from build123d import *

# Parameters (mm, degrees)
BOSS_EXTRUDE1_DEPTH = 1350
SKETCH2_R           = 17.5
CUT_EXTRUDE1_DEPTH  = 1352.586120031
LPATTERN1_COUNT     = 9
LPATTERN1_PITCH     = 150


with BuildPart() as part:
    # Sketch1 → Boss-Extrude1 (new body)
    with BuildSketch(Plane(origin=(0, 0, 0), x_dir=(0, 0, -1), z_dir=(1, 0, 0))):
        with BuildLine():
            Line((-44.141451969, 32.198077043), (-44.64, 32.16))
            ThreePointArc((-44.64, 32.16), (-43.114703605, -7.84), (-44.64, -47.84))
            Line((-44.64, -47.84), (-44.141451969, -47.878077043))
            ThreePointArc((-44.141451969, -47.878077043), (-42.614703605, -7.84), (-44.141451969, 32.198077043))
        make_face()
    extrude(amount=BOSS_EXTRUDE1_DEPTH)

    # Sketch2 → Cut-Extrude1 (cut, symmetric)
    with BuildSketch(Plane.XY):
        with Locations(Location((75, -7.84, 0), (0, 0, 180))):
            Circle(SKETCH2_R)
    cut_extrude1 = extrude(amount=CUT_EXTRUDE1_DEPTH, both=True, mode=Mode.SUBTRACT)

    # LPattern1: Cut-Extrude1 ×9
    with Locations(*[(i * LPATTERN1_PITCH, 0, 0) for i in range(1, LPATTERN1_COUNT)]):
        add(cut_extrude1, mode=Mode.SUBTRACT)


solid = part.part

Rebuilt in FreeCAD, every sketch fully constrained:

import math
import FreeCAD as App
import Part
import Sketcher

doc = App.newDocument("Part")
body = doc.addObject("PartDesign::Body", "Body")

# Sketch on YZ plane
sketch1 = body.newObject("Sketcher::SketchObject", "Sketch")
sketch1.AttachmentSupport = (doc.getObject("YZ_Plane"), [""])
sketch1.MapMode = "FlatFace"
sketch1.addGeometry(Part.LineSegment(App.Vector(32.2, 44.1, 0), App.Vector(32.2, 44.6, 0)), False)
sketch1.addGeometry(Part.ArcOfCircle(Part.Circle(App.Vector(-7.8, 568.4, 0), App.Vector(0, 0, 1), 525.3), math.radians(-94.37), math.radians(-85.63)), False)
sketch1.addGeometry(Part.LineSegment(App.Vector(-47.8, 44.6, 0), App.Vector(-47.9, 44.1, 0)), False)
sketch1.addGeometry(Part.ArcOfCircle(Part.Circle(App.Vector(-7.8, 568.4, 0), App.Vector(0, 0, 1), 525.8), math.radians(-94.37), math.radians(-85.63)), False)
sketch1.addConstraint(Sketcher.Constraint("Coincident", 0, 2, 1, 2))
sketch1.addConstraint(Sketcher.Constraint("Coincident", 1, 1, 2, 1))
sketch1.addConstraint(Sketcher.Constraint("Coincident", 2, 2, 3, 1))
sketch1.addConstraint(Sketcher.Constraint("Coincident", 3, 2, 0, 1))
sketch1.addConstraint(Sketcher.Constraint("Coincident", 3, 3, 1, 3))
sketch1.addConstraint(Sketcher.Constraint("Horizontal", 0, 2, 1, 1))
sketch1.addConstraint(Sketcher.Constraint("Horizontal", 2, 2, 3, 2))
sketch1.addConstraint(Sketcher.Constraint("DistanceX", 1, 3, 0, 2, 40.0))
sketch1.addConstraint(Sketcher.Constraint("Distance", 0, 0.5))
sketch1.addConstraint(Sketcher.Constraint("DistanceX", 1, 3, -1, 1, 7.84))
sketch1.addConstraint(Sketcher.Constraint("DistanceY", -1, 1, 0, 2, 44.64))
sketch1.addConstraint(Sketcher.Constraint("Radius", 1, 525.250874))
sketch1.addConstraint(Sketcher.Constraint("DistanceY", -1, 1, 2, 2, 44.141452))
pad1 = body.newObject("PartDesign::Pad", "Pad")
pad1.Profile = sketch1
pad1.Length = 1350

# Sketch on XY plane
sketch2 = body.newObject("Sketcher::SketchObject", "Sketch001")
sketch2.AttachmentSupport = (doc.getObject("XY_Plane"), [""])
sketch2.MapMode = "FlatFace"
sketch2.addGeometry(Part.Circle(App.Vector(75, -8, 0), App.Vector(0, 0, 1), 18), False)
sketch2.addConstraint(Sketcher.Constraint("Diameter", 0, 35.0))
sketch2.addConstraint(Sketcher.Constraint("DistanceX", -1, 1, 0, 3, 75.0))
sketch2.addConstraint(Sketcher.Constraint("DistanceY", 0, 3, -1, 1, 7.84))
pocket1 = body.newObject("PartDesign::Pocket", "Pocket")
pocket1.Profile = sketch2
pocket1.Length = 2705.17224
pocket1.Midplane = True
doc.recompute()

linearpattern = body.newObject("PartDesign::LinearPattern", "LinearPattern")
linearpattern.Originals = [pocket1]
linearpattern.Direction = (doc.getObject("X_Axis"), [""])
linearpattern.Mode = "offset"
linearpattern.Offset = 150
linearpattern.Occurrences = 9
body.Tip = linearpattern

doc.recompute()
